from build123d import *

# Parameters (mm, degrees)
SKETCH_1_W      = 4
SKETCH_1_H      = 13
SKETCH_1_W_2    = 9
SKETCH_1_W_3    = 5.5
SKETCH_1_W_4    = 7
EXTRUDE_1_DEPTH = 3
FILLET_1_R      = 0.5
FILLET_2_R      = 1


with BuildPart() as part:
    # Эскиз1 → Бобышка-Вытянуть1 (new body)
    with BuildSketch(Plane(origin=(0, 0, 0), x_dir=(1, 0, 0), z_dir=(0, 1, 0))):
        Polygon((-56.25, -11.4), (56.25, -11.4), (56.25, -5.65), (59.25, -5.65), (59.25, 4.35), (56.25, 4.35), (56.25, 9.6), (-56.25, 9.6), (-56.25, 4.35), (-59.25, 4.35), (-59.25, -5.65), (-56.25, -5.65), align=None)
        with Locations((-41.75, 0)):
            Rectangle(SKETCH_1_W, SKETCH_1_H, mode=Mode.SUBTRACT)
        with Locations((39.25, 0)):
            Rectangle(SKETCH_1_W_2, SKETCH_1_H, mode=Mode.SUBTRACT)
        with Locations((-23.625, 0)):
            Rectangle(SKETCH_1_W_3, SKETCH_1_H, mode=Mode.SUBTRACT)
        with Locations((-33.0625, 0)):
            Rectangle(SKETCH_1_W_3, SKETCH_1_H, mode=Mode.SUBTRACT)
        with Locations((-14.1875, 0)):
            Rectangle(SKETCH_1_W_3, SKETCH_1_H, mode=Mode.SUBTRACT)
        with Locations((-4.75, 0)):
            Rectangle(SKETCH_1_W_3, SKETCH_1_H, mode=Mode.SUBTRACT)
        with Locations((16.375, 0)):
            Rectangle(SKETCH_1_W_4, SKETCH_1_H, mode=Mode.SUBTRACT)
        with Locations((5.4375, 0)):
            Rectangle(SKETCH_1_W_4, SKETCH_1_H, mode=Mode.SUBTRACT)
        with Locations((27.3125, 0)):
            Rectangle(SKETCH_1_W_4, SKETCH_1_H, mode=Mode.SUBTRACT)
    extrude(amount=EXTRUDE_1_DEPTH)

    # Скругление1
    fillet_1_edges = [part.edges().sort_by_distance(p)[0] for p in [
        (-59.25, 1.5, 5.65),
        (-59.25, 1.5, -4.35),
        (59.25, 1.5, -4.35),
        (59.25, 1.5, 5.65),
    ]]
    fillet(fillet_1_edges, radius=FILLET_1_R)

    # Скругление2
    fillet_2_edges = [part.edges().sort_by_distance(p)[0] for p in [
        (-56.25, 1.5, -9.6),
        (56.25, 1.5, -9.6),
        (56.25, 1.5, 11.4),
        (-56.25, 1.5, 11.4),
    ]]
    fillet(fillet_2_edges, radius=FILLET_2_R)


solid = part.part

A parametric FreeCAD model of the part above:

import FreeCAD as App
import Part
import Sketcher
from FreeCAD import Vector


def edges_at(feature, points):
    """Names of the edges that pass closest to the given points."""
    edges = feature.Shape.Edges
    near = lambda p: min(range(len(edges)), key=lambda i: edges[i].distToShape(Part.Vertex(*p))[0])
    return sorted({f"Edge{near(p) + 1}" for p in points})


def add_polygon(sketch, points):
    """Adds a closed chain of lines whose ends are joined by coincident constraints."""
    first, n = sketch.GeometryCount, len(points)
    for a, b in zip(points, points[1:] + points[:1]):
        sketch.addGeometry(Part.LineSegment(App.Vector(*a, 0), App.Vector(*b, 0)), False)
    for i in range(n):
        sketch.addConstraint(Sketcher.Constraint("Coincident", first + i, 2, first + (i + 1) % n, 1))

doc = App.newDocument("Part")
params = doc.addObject("Spreadsheet::Sheet", "Params")
for row, (alias, value) in enumerate([
    ("sketch1_width", "3 mm"),
    ("sketch1_width2", "4 mm"),
    ("sketch1_width3", "7 mm"),
    ("sketch1_width4", "9 mm"),
    ("sketch1_height", "10 mm"),
    ("pad1_length", "3 mm"),
    ("fillet_radius", "0.5 mm"),
    ("fillet2_radius", "1 mm"),
], start=1):
    params.set(f"A{row}", alias)
    params.set(f"B{row}", "=" + value)
    params.setAlias(f"B{row}", alias)

body = doc.addObject("PartDesign::Body", "Body")

# Sketch on XZ plane
sketch1 = body.newObject("Sketcher::SketchObject", "Sketch")
sketch1.AttachmentSupport = (doc.getObject("XZ_Plane"), [""])
sketch1.MapMode = "FlatFace"
add_polygon(sketch1, [(-56.2, 11.4), (56.2, 11.4), (56.2, 5.7), (59.2, 5.7), (59.2, -4.3), (56.2, -4.3), (56.2, -9.6), (-56.2, -9.6), (-56.2, -4.3), (-59.2, -4.3), (-59.2, 5.7), (-56.2, 5.7)])  # lines 0-11
add_polygon(sketch1, [(-39.8, 6.5), (-43.8, 6.5), (-43.8, -6.5), (-39.8, -6.5)])  # lines 12-15
add_polygon(sketch1, [(-30.3, 6.5), (-35.8, 6.5), (-35.8, -6.5), (-30.3, -6.5)])  # lines 16-19
add_polygon(sketch1, [(-20.9, 6.5), (-26.4, 6.5), (-26.4, -6.5), (-20.9, -6.5)])  # lines 20-23
add_polygon(sketch1, [(-11.4, 6.5), (-16.9, 6.5), (-16.9, -6.5), (-11.4, -6.5)])  # lines 24-27
add_polygon(sketch1, [(-2, 6.5), (-7.5, 6.5), (-7.5, -6.5), (-2, -6.5)])  # lines 28-31
add_polygon(sketch1, [(8.9, 6.5), (1.9, 6.5), (1.9, -6.5), (8.9, -6.5)])  # lines 32-35
add_polygon(sketch1, [(19.9, 6.5), (12.9, 6.5), (12.9, -6.5), (19.9, -6.5)])  # lines 36-39
add_polygon(sketch1, [(30.8, 6.5), (23.8, 6.5), (23.8, -6.5), (30.8, -6.5)])  # lines 40-43
add_polygon(sketch1, [(43.8, 6.5), (34.8, 6.5), (34.8, -6.5), (43.8, -6.5)])  # lines 44-47
sketch1.addConstraint(Sketcher.Constraint("Horizontal", 0))
sketch1.addConstraint(Sketcher.Constraint("Vertical", 1))
sketch1.addConstraint(Sketcher.Constraint("Horizontal", 2))
sketch1.addConstraint(Sketcher.Constraint("Vertical", 3))
sketch1.addConstraint(Sketcher.Constraint("Horizontal", 4))
sketch1.addConstraint(Sketcher.Constraint("Vertical", 5))
sketch1.addConstraint(Sketcher.Constraint("Horizontal", 6))
sketch1.addConstraint(Sketcher.Constraint("Vertical", 7))
sketch1.addConstraint(Sketcher.Constraint("Horizontal", 8))
sketch1.addConstraint(Sketcher.Constraint("Vertical", 9))
sketch1.addConstraint(Sketcher.Constraint("Horizontal", 10))
sketch1.addConstraint(Sketcher.Constraint("Vertical", 11))
sketch1.addConstraint(Sketcher.Constraint("Horizontal", 12))
sketch1.addConstraint(Sketcher.Constraint("Vertical", 13))
sketch1.addConstraint(Sketcher.Constraint("Horizontal", 14))
sketch1.addConstraint(Sketcher.Constraint("Vertical", 15))
sketch1.addConstraint(Sketcher.Constraint("Horizontal", 16))
sketch1.addConstraint(Sketcher.Constraint("Vertical", 17))
sketch1.addConstraint(Sketcher.Constraint("Horizontal", 18))
sketch1.addConstraint(Sketcher.Constraint("Vertical", 19))
sketch1.addConstraint(Sketcher.Constraint("Horizontal", 20))
sketch1.addConstraint(Sketcher.Constraint("Vertical", 21))
sketch1.addConstraint(Sketcher.Constraint("Horizontal", 22))
sketch1.addConstraint(Sketcher.Constraint("Vertical", 23))
sketch1.addConstraint(Sketcher.Constraint("Horizontal", 24))
sketch1.addConstraint(Sketcher.Constraint("Vertical", 25))
sketch1.addConstraint(Sketcher.Constraint("Horizontal", 26))
sketch1.addConstraint(Sketcher.Constraint("Vertical", 27))
sketch1.addConstraint(Sketcher.Constraint("Horizontal", 28))
sketch1.addConstraint(Sketcher.Constraint("Vertical", 29))
sketch1.addConstraint(Sketcher.Constraint("Horizontal", 30))
sketch1.addConstraint(Sketcher.Constraint("Vertical", 31))
sketch1.addConstraint(Sketcher.Constraint("Horizontal", 32))
sketch1.addConstraint(Sketcher.Constraint("Vertical", 33))
sketch1.addConstraint(Sketcher.Constraint("Horizontal", 34))
sketch1.addConstraint(Sketcher.Constraint("Vertical", 35))
sketch1.addConstraint(Sketcher.Constraint("Horizontal", 36))
sketch1.addConstraint(Sketcher.Constraint("Vertical", 37))
sketch1.addConstraint(Sketcher.Constraint("Horizontal", 38))
sketch1.addConstraint(Sketcher.Constraint("Vertical", 39))
sketch1.addConstraint(Sketcher.Constraint("Horizontal", 40))
sketch1.addConstraint(Sketcher.Constraint("Vertical", 41))
sketch1.addConstraint(Sketcher.Constraint("Horizontal", 42))
sketch1.addConstraint(Sketcher.Constraint("Vertical", 43))
sketch1.addConstraint(Sketcher.Constraint("Horizontal", 44))
sketch1.addConstraint(Sketcher.Constraint("Vertical", 45))
sketch1.addConstraint(Sketcher.Constraint("Horizontal", 46))
sketch1.addConstraint(Sketcher.Constraint("Vertical", 47))
sketch1.addConstraint(Sketcher.Constraint("Symmetric", 12, 2, 46, 2, -1, 1))
sketch1.addConstraint(Sketcher.Constraint("Symmetric", 4, 2, 7, 2, -2))
sketch1.addConstraint(Sketcher.Constraint("Symmetric", 2, 2, 9, 2, -2))
sketch1.addConstraint(Sketcher.Constraint("Horizontal", 15, 2, 16, 2))
sketch1.addConstraint(Sketcher.Constraint("Horizontal", 14, 2, 17, 2))
sketch1.addConstraint(Sketcher.Constraint("Horizontal", 19, 2, 20, 2))
sketch1.addConstraint(Sketcher.Constraint("Horizontal", 18, 2, 21, 2))
sketch1.addConstraint(Sketcher.Constraint("Horizontal", 23, 2, 24, 2))
sketch1.addConstraint(Sketcher.Constraint("Horizontal", 22, 2, 25, 2))
sketch1.addConstraint(Sketcher.Constraint("Horizontal", 27, 2, 28, 2))
sketch1.addConstraint(Sketcher.Constraint("Horizontal", 26, 2, 29, 2))
sketch1.addConstraint(Sketcher.Constraint("Horizontal", 31, 2, 32, 2))
sketch1.addConstraint(Sketcher.Constraint("Horizontal", 30, 2, 33, 2))
sketch1.addConstraint(Sketcher.Constraint("Horizontal", 35, 2, 36, 2))
sketch1.addConstraint(Sketcher.Constraint("Horizontal", 34, 2, 37, 2))
sketch1.addConstraint(Sketcher.Constraint("Horizontal", 39, 2, 40, 2))
sketch1.addConstraint(Sketcher.Constraint("Horizontal", 38, 2, 41, 2))
sketch1.addConstraint(Sketcher.Constraint("Horizontal", 43, 2, 44, 2))
sketch1.addConstraint(Sketcher.Constraint("Horizontal", 42, 2, 45, 2))
sketch1.addConstraint(Sketcher.Constraint("Vertical", 1, 2, 4, 2))
sketch1.addConstraint(Sketcher.Constraint("Vertical", 7, 2, 10, 2))
sketch1.addConstraint(Sketcher.Constraint("Equal", 18, 20))
sketch1.addConstraint(Sketcher.Constraint("Equal", 22, 24))
sketch1.addConstraint(Sketcher.Constraint("Equal", 26, 28))
sketch1.addConstraint(Sketcher.Constraint("Equal", 34, 36))
sketch1.addConstraint(Sketcher.Constraint("Equal", 38, 40))
sketch1.addConstraint(Sketcher.Constraint("DistanceX", 2, 1, 2, 2, 3.0))
sketch1.addConstraint(Sketcher.Constraint("DistanceX", 12, 2, 12, 1, 4.0))
sketch1.addConstraint(Sketcher.Constraint("DistanceX", 32, 2, 32, 1, 7.0))
sketch1.addConstraint(Sketcher.Constraint("DistanceX", 44, 2, 44, 1, 9.0))
sketch1.addConstraint(Sketcher.Constraint("DistanceY", 3, 2, 3, 1, 10.0))
sketch1.addConstraint(Sketcher.Constraint("DistanceY", 13, 2, 13, 1, 13.0))
sketch1.addConstraint(Sketcher.Constraint("DistanceX", 0, 1, 0, 2, 112.5))
sketch1.addConstraint(Sketcher.Constraint("DistanceX", 16, 2, 16, 1, 5.5))
sketch1.addConstraint(Sketcher.Constraint("DistanceX", 30, 2, -1, 1, 2.0))
sketch1.addConstraint(Sketcher.Constraint("DistanceY", 5, 2, 0, 2, 21.0))
sketch1.addConstraint(Sketcher.Constraint("DistanceY", 1, 2, 1, 1, 5.75))
sketch1.addConstraint(Sketcher.Constraint("DistanceY", -1, 1, 0, 2, 11.4))
sketch1.addConstraint(Sketcher.Constraint("DistanceX", 10, 2, 12, 2, 12.5))
sketch1.addConstraint(Sketcher.Constraint("DistanceX", 20, 2, -1, 1, 26.375))
sketch1.addConstraint(Sketcher.Constraint("DistanceX", -1, 1, 36, 2, 12.875))
sketch1.addConstraint(Sketcher.Constraint("DistanceX", 19, 2, 24, 2, 13.375))
sketch1.addConstraint(Sketcher.Constraint("DistanceX", 27, 2, 32, 2, 13.375))
sketch1.addConstraint(Sketcher.Constraint("DistanceX", 35, 2, 40, 2, 14.875))
sketch1.addConstraint(Sketcher.Constraint("DistanceX", 16, 2, -1, 1, 35.8125))
sketch1.setExpression("Constraints[122]", "Params.sketch1_width")
sketch1.setExpression("Constraints[123]", "Params.sketch1_width2")
sketch1.setExpression("Constraints[124]", "Params.sketch1_width3")
sketch1.setExpression("Constraints[125]", "Params.sketch1_width4")
sketch1.setExpression("Constraints[126]", "Params.sketch1_height")
pad1 = body.newObject("PartDesign::Pad", "Pad")
pad1.Profile = sketch1
pad1.setExpression("Length", "Params.pad1_length")
pad1.Reversed = True
doc.recompute()

fillet = body.newObject("PartDesign::Fillet", "Fillet")
fillet.Base = (pad1, edges_at(pad1, [
    (-59.25, 1.5, 5.65),
    (-59.25, 1.5, -4.35),
    (59.25, 1.5, -4.35),
    (59.25, 1.5, 5.65),
]))
fillet.setExpression("Radius", "Params.fillet_radius")
doc.recompute()

fillet2 = body.newObject("PartDesign::Fillet", "Fillet001")
fillet2.Base = (fillet, edges_at(fillet, [
    (-56.25, 1.5, -9.6),
    (56.25, 1.5, -9.6),
    (56.25, 1.5, 11.4),
    (-56.25, 1.5, 11.4),
]))
fillet2.setExpression("Radius", "Params.fillet2_radius")

doc.recompute()
